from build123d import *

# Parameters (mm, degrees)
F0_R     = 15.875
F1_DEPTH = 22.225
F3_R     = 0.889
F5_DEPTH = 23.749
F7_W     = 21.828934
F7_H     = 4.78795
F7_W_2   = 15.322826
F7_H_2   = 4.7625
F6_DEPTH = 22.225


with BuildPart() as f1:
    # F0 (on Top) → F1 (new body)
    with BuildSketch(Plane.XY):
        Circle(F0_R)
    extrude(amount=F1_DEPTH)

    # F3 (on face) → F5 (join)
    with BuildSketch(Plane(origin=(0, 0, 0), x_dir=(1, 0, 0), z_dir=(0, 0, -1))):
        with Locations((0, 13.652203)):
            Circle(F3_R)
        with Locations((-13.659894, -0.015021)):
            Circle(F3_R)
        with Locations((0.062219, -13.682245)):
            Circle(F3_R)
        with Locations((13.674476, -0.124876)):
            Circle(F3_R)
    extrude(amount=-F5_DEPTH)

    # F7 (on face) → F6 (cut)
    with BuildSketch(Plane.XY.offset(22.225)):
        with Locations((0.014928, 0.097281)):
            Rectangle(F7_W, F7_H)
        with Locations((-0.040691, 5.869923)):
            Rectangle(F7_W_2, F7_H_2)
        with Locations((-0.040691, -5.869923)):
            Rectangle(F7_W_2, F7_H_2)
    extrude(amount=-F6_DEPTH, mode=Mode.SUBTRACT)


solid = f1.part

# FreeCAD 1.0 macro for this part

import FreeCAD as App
import Part
import Sketcher
from FreeCAD import Vector
Q = App.Units.Quantity

doc = App.newDocument("Part")
params = doc.addObject("Spreadsheet::Sheet", "Params")
for row, (alias, value) in enumerate([
    ("sketch1_diameter", "1.25 in"),
    ("pad1_length", "0.875 in"),
    ("sketch2_diameter", "0.07 in"),
    ("pad2_length", "0.935 in"),
    ("sketch3_height", "0.1875 in"),
    ("pocket1_length", "0.875 in"),
], start=1):
    params.set(f"A{row}", alias)
    params.set(f"B{row}", "=" + value)
    params.setAlias(f"B{row}", alias)

body = doc.addObject("PartDesign::Body", "Body")

# Sketch on XY plane
sketch1 = body.newObject("Sketcher::SketchObject", "Sketch")
sketch1.AttachmentSupport = (doc.getObject("XY_Plane"), [""])
sketch1.MapMode = "FlatFace"
sketch1.addGeometry(Part.Circle(Vector(0, 0, 0), Vector(0, 0, 1), 16), False)
sketch1.addConstraint(Sketcher.Constraint("Coincident", 0, 3, -1, 1))
sketch1.addConstraint(Sketcher.Constraint("Diameter", 0, Q("1.25 in")))
sketch1.setExpression("Constraints[1]", "Params.sketch1_diameter")
pad1 = body.newObject("PartDesign::Pad", "Pad")
pad1.Profile = sketch1
pad1.setExpression("Length", "Params.pad1_length")

# Sketch on XY plane
sketch2 = body.newObject("Sketcher::SketchObject", "Sketch001")
sketch2.AttachmentSupport = (doc.getObject("XY_Plane"), [""])
sketch2.MapMode = "FlatFace"
sketch2.addGeometry(Part.Circle(Vector(0, -13.7, 0), Vector(0, 0, 1), 0.9), False)
sketch2.addGeometry(Part.Circle(Vector(-13.7, 0, 0), Vector(0, 0, 1), 0.9), False)
sketch2.addGeometry(Part.Circle(Vector(0.1, 13.7, 0), Vector(0, 0, 1), 0.9), False)
sketch2.addGeometry(Part.Circle(Vector(13.7, 0.1, 0), Vector(0, 0, 1), 0.9), False)
sketch2.addConstraint(Sketcher.Constraint("Equal", 0, 1))
sketch2.addConstraint(Sketcher.Constraint("Equal", 1, 2))
sketch2.addConstraint(Sketcher.Constraint("Equal", 2, 3))
sketch2.addConstraint(Sketcher.Constraint("PointOnObject", 0, 3, -2))
sketch2.addConstraint(Sketcher.Constraint("Diameter", 0, Q("0.07 in")))
sketch2.addConstraint(Sketcher.Constraint("DistanceY", -1, 1, 1, 3, Q("0.015021 mm")))
sketch2.addConstraint(Sketcher.Constraint("DistanceX", -1, 1, 2, 3, Q("0.062219 mm")))
sketch2.addConstraint(Sketcher.Constraint("DistanceY", 0, 3, 2, 3, Q("27.334448 mm")))
sketch2.addConstraint(Sketcher.Constraint("DistanceY", 3, 3, 2, 3, Q("13.557369 mm")))
sketch2.addConstraint(Sketcher.Constraint("DistanceX", 1, 3, 3, 3, Q("27.33437 mm")))
sketch2.addConstraint(Sketcher.Constraint("DistanceY", 0, 3, -1, 1, Q("13.652203 mm")))
sketch2.addConstraint(Sketcher.Constraint("DistanceX", 1, 3, -1, 1, Q("13.659894 mm")))
sketch2.setExpression("Constraints[4]", "Params.sketch2_diameter")
pad2 = body.newObject("PartDesign::Pad", "Pad001")
pad2.Profile = sketch2
pad2.setExpression("Length", "Params.pad2_length")

# Sketch on XY plane
sketch3 = body.newObject("Sketcher::SketchObject", "Sketch002")
sketch3.AttachmentSupport = (doc.getObject("XY_Plane"), [""])
sketch3.MapMode = "FlatFace"
sketch3.AttachmentOffset = App.Placement(Vector(0, 0, 0.875 * 25.4), App.Rotation())
sketch3.addGeometry(Part.LineSegment(Vector(-10.9, 2.5, 0), Vector(-10.9, -2.3, 0)), False)
sketch3.addGeometry(Part.LineSegment(Vector(-10.9, -2.3, 0), Vector(10.9, -2.3, 0)), False)
sketch3.addGeometry(Part.LineSegment(Vector(10.9, -2.3, 0), Vector(10.9, 2.5, 0)), False)
sketch3.addGeometry(Part.LineSegment(Vector(10.9, 2.5, 0), Vector(-10.9, 2.5, 0)), False)
sketch3.addGeometry(Part.LineSegment(Vector(-7.7, 8.3, 0), Vector(-7.7, 3.5, 0)), False)
sketch3.addGeometry(Part.LineSegment(Vector(-7.7, 3.5, 0), Vector(7.6, 3.5, 0)), False)
sketch3.addGeometry(Part.LineSegment(Vector(7.6, 3.5, 0), Vector(7.6, 8.3, 0)), False)
sketch3.addGeometry(Part.LineSegment(Vector(7.6, 8.3, 0), Vector(-7.7, 8.3, 0)), False)
sketch3.addGeometry(Part.LineSegment(Vector(-7.7, -3.5, 0), Vector(-7.7, -8.3, 0)), False)
sketch3.addGeometry(Part.LineSegment(Vector(-7.7, -8.3, 0), Vector(7.6, -8.3, 0)), False)
sketch3.addGeometry(Part.LineSegment(Vector(7.6, -8.3, 0), Vector(7.6, -3.5, 0)), False)
sketch3.addGeometry(Part.LineSegment(Vector(7.6, -3.5, 0), Vector(-7.7, -3.5, 0)), False)
sketch3.addConstraint(Sketcher.Constraint("Coincident", 0, 2, 1, 1))
sketch3.addConstraint(Sketcher.Constraint("Coincident", 1, 2, 2, 1))
sketch3.addConstraint(Sketcher.Constraint("Coincident", 2, 2, 3, 1))
sketch3.addConstraint(Sketcher.Constraint("Coincident", 3, 2, 0, 1))
sketch3.addConstraint(Sketcher.Constraint("Coincident", 4, 2, 5, 1))
sketch3.addConstraint(Sketcher.Constraint("Coincident", 5, 2, 6, 1))
sketch3.addConstraint(Sketcher.Constraint("Coincident", 6, 2, 7, 1))
sketch3.addConstraint(Sketcher.Constraint("Coincident", 7, 2, 4, 1))
sketch3.addConstraint(Sketcher.Constraint("Coincident", 8, 2, 9, 1))
sketch3.addConstraint(Sketcher.Constraint("Coincident", 9, 2, 10, 1))
sketch3.addConstraint(Sketcher.Constraint("Coincident", 10, 2, 11, 1))
sketch3.addConstraint(Sketcher.Constraint("Coincident", 11, 2, 8, 1))
sketch3.addConstraint(Sketcher.Constraint("Vertical", 0))
sketch3.addConstraint(Sketcher.Constraint("Horizontal", 1))
sketch3.addConstraint(Sketcher.Constraint("Vertical", 2))
sketch3.addConstraint(Sketcher.Constraint("Horizontal", 3))
sketch3.addConstraint(Sketcher.Constraint("Vertical", 4))
sketch3.addConstraint(Sketcher.Constraint("Horizontal", 5))
sketch3.addConstraint(Sketcher.Constraint("Vertical", 6))
sketch3.addConstraint(Sketcher.Constraint("Horizontal", 7))
sketch3.addConstraint(Sketcher.Constraint("Vertical", 8))
sketch3.addConstraint(Sketcher.Constraint("Horizontal", 9))
sketch3.addConstraint(Sketcher.Constraint("Vertical", 10))
sketch3.addConstraint(Sketcher.Constraint("Horizontal", 11))
sketch3.addConstraint(Sketcher.Constraint("Symmetric", 7, 2, 8, 2, -1))
sketch3.addConstraint(Sketcher.Constraint("Symmetric", 5, 2, 10, 2, -1))
sketch3.addConstraint(Sketcher.Constraint("DistanceY", 4, 2, 4, 1, Q("0.1875 in")))
sketch3.addConstraint(Sketcher.Constraint("DistanceY", 0, 2, 0, 1, Q("4.78795 mm")))
sketch3.addConstraint(Sketcher.Constraint("DistanceX", 4, 2, 2, 2, Q("18.631499 mm")))
sketch3.addConstraint(Sketcher.Constraint("DistanceX", 1, 1, 1, 2, Q("21.828934 mm")))
sketch3.addConstraint(Sketcher.Constraint("DistanceX", 5, 1, 5, 2, Q("15.322826 mm")))
sketch3.addConstraint(Sketcher.Constraint("DistanceX", 0, 2, -1, 1, Q("10.899539 mm")))
sketch3.addConstraint(Sketcher.Constraint("DistanceY", 8, 2, 0, 2, Q("5.954479 mm")))
sketch3.addConstraint(Sketcher.Constraint("DistanceY", 0, 2, -1, 1, Q("2.296694 mm")))
sketch3.setExpression("Constraints[26]", "Params.sketch3_height")
pocket1 = body.newObject("PartDesign::Pocket", "Pocket")
pocket1.Profile = sketch3
pocket1.setExpression("Length", "Params.pocket1_length")

doc.recompute()
